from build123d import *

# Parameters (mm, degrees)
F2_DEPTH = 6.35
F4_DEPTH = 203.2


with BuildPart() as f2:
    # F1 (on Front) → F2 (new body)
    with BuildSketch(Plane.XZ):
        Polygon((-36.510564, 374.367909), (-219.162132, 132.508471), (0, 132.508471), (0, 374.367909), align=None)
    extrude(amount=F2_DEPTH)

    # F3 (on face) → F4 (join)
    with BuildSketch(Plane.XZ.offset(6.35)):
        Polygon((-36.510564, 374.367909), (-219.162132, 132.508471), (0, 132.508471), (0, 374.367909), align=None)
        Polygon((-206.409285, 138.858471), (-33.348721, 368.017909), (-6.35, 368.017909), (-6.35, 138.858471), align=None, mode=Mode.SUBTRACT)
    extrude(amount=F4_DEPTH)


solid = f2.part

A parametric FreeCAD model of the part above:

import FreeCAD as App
import Part
import Sketcher
from FreeCAD import Vector
Q = App.Units.Quantity

doc = App.newDocument("Part")
params = doc.addObject("Spreadsheet::Sheet", "Params")
for row, (alias, value) in enumerate([
    ("pad1_length", "0.25 in"),
    ("pad2_length", "8 in"),
], start=1):
    params.set(f"A{row}", alias)
    params.set(f"B{row}", "=" + value)
    params.setAlias(f"B{row}", alias)

body = doc.addObject("PartDesign::Body", "Body")

# Sketch on XZ plane
sketch1 = body.newObject("Sketcher::SketchObject", "Sketch")
sketch1.AttachmentSupport = (doc.getObject("XZ_Plane"), [""])
sketch1.MapMode = "FlatFace"
sketch1.addGeometry(Part.LineSegment(Vector(-36.510564, 374.367909, 0), Vector(-219.162132, 132.508471, 0)), False)
sketch1.addGeometry(Part.LineSegment(Vector(-219.162132, 132.508471, 0), Vector(0, 132.508471, 0)), False)
sketch1.addGeometry(Part.LineSegment(Vector(0, 132.508471, 0), Vector(0, 374.367909, 0)), False)
sketch1.addGeometry(Part.LineSegment(Vector(0, 374.367909, 0), Vector(-36.510564, 374.367909, 0)), False)
sketch1.addConstraint(Sketcher.Constraint("Coincident", 0, 2, 1, 1))
sketch1.addConstraint(Sketcher.Constraint("Coincident", 1, 2, 2, 1))
sketch1.addConstraint(Sketcher.Constraint("Coincident", 2, 2, 3, 1))
sketch1.addConstraint(Sketcher.Constraint("Coincident", 3, 2, 0, 1))
sketch1.addConstraint(Sketcher.Constraint("Horizontal", 1))
sketch1.addConstraint(Sketcher.Constraint("Vertical", 2))
sketch1.addConstraint(Sketcher.Constraint("Horizontal", 3))
sketch1.addConstraint(Sketcher.Constraint("PointOnObject", 1, 2, -2))
sketch1.addConstraint(Sketcher.Constraint("Angle", 0, Q("-127.06 deg")))
sketch1.addConstraint(Sketcher.Constraint("DistanceY", 2, 1, 2, 2, Q("241.859438 mm")))
sketch1.addConstraint(Sketcher.Constraint("DistanceX", 1, 1, 1, 2, Q("219.162132 mm")))
sketch1.addConstraint(Sketcher.Constraint("DistanceY", -1, 1, 0, 2, Q("132.508471 mm")))
pad1 = body.newObject("PartDesign::Pad", "Pad")
pad1.Profile = sketch1
pad1.setExpression("Length", "Params.pad1_length")

# Sketch on XZ plane
sketch2 = body.newObject("Sketcher::SketchObject", "Sketch001")
sketch2.AttachmentSupport = (doc.getObject("XZ_Plane"), [""])
sketch2.MapMode = "FlatFace"
sketch2.AttachmentOffset = App.Placement(Vector(0, 0, 0.25 * 25.4), App.Rotation())
sketch2.addGeometry(Part.LineSegment(Vector(-36.510564, 374.367909, 0), Vector(-219.162132, 132.508471, 0)), False)
sketch2.addGeometry(Part.LineSegment(Vector(-219.162132, 132.508471, 0), Vector(0, 132.508471, 0)), False)
sketch2.addGeometry(Part.LineSegment(Vector(0, 132.508471, 0), Vector(0, 374.367909, 0)), False)
sketch2.addGeometry(Part.LineSegment(Vector(0, 374.367909, 0), Vector(-36.510564, 374.367909, 0)), False)
sketch2.addGeometry(Part.LineSegment(Vector(-6.35, 138.858471, 0), Vector(-206.409285, 138.858471, 0)), False)
sketch2.addGeometry(Part.LineSegment(Vector(-206.409285, 138.858471, 0), Vector(-33.348721, 368.017909, 0)), False)
sketch2.addGeometry(Part.LineSegment(Vector(-33.348721, 368.017909, 0), Vector(-6.35, 368.017909, 0)), False)
sketch2.addGeometry(Part.LineSegment(Vector(-6.35, 368.017909, 0), Vector(-6.35, 138.858471, 0)), False)
sketch2.addConstraint(Sketcher.Constraint("Coincident", 0, 2, 1, 1))
sketch2.addConstraint(Sketcher.Constraint("Coincident", 1, 2, 2, 1))
sketch2.addConstraint(Sketcher.Constraint("Coincident", 2, 2, 3, 1))
sketch2.addConstraint(Sketcher.Constraint("Coincident", 3, 2, 0, 1))
sketch2.addConstraint(Sketcher.Constraint("Coincident", 4, 2, 5, 1))
sketch2.addConstraint(Sketcher.Constraint("Coincident", 5, 2, 6, 1))
sketch2.addConstraint(Sketcher.Constraint("Coincident", 6, 2, 7, 1))
sketch2.addConstraint(Sketcher.Constraint("Coincident", 7, 2, 4, 1))
sketch2.addConstraint(Sketcher.Constraint("Horizontal", 1))
sketch2.addConstraint(Sketcher.Constraint("Vertical", 2))
sketch2.addConstraint(Sketcher.Constraint("Horizontal", 3))
sketch2.addConstraint(Sketcher.Constraint("Horizontal", 4))
sketch2.addConstraint(Sketcher.Constraint("Horizontal", 6))
sketch2.addConstraint(Sketcher.Constraint("Vertical", 7))
sketch2.addConstraint(Sketcher.Constraint("PointOnObject", 1, 2, -2))
sketch2.addConstraint(Sketcher.Constraint("Parallel", 0, 5))
sketch2.addConstraint(Sketcher.Constraint("DistanceX", 6, 2, -1, 1, Q("0.25 in")))
sketch2.addConstraint(Sketcher.Constraint("Angle", 0, Q("-127.06 deg")))
sketch2.addConstraint(Sketcher.Constraint("DistanceY", 0, 2, 4, 2, Q("0.25 in")))
sketch2.addConstraint(Sketcher.Constraint("DistanceY", 5, 2, 3, 2, Q("0.25 in")))
sketch2.addConstraint(Sketcher.Constraint("DistanceX", 6, 1, 6, 2, Q("26.998721 mm")))
sketch2.addConstraint(Sketcher.Constraint("DistanceY", 2, 1, 2, 2, Q("241.859438 mm")))
sketch2.addConstraint(Sketcher.Constraint("DistanceX", 1, 1, 1, 2, Q("219.162132 mm")))
sketch2.addConstraint(Sketcher.Constraint("DistanceY", -1, 1, 0, 2, Q("132.508471 mm")))
pad2 = body.newObject("PartDesign::Pad", "Pad001")
pad2.Profile = sketch2
pad2.setExpression("Length", "Params.pad2_length")

doc.recompute()
